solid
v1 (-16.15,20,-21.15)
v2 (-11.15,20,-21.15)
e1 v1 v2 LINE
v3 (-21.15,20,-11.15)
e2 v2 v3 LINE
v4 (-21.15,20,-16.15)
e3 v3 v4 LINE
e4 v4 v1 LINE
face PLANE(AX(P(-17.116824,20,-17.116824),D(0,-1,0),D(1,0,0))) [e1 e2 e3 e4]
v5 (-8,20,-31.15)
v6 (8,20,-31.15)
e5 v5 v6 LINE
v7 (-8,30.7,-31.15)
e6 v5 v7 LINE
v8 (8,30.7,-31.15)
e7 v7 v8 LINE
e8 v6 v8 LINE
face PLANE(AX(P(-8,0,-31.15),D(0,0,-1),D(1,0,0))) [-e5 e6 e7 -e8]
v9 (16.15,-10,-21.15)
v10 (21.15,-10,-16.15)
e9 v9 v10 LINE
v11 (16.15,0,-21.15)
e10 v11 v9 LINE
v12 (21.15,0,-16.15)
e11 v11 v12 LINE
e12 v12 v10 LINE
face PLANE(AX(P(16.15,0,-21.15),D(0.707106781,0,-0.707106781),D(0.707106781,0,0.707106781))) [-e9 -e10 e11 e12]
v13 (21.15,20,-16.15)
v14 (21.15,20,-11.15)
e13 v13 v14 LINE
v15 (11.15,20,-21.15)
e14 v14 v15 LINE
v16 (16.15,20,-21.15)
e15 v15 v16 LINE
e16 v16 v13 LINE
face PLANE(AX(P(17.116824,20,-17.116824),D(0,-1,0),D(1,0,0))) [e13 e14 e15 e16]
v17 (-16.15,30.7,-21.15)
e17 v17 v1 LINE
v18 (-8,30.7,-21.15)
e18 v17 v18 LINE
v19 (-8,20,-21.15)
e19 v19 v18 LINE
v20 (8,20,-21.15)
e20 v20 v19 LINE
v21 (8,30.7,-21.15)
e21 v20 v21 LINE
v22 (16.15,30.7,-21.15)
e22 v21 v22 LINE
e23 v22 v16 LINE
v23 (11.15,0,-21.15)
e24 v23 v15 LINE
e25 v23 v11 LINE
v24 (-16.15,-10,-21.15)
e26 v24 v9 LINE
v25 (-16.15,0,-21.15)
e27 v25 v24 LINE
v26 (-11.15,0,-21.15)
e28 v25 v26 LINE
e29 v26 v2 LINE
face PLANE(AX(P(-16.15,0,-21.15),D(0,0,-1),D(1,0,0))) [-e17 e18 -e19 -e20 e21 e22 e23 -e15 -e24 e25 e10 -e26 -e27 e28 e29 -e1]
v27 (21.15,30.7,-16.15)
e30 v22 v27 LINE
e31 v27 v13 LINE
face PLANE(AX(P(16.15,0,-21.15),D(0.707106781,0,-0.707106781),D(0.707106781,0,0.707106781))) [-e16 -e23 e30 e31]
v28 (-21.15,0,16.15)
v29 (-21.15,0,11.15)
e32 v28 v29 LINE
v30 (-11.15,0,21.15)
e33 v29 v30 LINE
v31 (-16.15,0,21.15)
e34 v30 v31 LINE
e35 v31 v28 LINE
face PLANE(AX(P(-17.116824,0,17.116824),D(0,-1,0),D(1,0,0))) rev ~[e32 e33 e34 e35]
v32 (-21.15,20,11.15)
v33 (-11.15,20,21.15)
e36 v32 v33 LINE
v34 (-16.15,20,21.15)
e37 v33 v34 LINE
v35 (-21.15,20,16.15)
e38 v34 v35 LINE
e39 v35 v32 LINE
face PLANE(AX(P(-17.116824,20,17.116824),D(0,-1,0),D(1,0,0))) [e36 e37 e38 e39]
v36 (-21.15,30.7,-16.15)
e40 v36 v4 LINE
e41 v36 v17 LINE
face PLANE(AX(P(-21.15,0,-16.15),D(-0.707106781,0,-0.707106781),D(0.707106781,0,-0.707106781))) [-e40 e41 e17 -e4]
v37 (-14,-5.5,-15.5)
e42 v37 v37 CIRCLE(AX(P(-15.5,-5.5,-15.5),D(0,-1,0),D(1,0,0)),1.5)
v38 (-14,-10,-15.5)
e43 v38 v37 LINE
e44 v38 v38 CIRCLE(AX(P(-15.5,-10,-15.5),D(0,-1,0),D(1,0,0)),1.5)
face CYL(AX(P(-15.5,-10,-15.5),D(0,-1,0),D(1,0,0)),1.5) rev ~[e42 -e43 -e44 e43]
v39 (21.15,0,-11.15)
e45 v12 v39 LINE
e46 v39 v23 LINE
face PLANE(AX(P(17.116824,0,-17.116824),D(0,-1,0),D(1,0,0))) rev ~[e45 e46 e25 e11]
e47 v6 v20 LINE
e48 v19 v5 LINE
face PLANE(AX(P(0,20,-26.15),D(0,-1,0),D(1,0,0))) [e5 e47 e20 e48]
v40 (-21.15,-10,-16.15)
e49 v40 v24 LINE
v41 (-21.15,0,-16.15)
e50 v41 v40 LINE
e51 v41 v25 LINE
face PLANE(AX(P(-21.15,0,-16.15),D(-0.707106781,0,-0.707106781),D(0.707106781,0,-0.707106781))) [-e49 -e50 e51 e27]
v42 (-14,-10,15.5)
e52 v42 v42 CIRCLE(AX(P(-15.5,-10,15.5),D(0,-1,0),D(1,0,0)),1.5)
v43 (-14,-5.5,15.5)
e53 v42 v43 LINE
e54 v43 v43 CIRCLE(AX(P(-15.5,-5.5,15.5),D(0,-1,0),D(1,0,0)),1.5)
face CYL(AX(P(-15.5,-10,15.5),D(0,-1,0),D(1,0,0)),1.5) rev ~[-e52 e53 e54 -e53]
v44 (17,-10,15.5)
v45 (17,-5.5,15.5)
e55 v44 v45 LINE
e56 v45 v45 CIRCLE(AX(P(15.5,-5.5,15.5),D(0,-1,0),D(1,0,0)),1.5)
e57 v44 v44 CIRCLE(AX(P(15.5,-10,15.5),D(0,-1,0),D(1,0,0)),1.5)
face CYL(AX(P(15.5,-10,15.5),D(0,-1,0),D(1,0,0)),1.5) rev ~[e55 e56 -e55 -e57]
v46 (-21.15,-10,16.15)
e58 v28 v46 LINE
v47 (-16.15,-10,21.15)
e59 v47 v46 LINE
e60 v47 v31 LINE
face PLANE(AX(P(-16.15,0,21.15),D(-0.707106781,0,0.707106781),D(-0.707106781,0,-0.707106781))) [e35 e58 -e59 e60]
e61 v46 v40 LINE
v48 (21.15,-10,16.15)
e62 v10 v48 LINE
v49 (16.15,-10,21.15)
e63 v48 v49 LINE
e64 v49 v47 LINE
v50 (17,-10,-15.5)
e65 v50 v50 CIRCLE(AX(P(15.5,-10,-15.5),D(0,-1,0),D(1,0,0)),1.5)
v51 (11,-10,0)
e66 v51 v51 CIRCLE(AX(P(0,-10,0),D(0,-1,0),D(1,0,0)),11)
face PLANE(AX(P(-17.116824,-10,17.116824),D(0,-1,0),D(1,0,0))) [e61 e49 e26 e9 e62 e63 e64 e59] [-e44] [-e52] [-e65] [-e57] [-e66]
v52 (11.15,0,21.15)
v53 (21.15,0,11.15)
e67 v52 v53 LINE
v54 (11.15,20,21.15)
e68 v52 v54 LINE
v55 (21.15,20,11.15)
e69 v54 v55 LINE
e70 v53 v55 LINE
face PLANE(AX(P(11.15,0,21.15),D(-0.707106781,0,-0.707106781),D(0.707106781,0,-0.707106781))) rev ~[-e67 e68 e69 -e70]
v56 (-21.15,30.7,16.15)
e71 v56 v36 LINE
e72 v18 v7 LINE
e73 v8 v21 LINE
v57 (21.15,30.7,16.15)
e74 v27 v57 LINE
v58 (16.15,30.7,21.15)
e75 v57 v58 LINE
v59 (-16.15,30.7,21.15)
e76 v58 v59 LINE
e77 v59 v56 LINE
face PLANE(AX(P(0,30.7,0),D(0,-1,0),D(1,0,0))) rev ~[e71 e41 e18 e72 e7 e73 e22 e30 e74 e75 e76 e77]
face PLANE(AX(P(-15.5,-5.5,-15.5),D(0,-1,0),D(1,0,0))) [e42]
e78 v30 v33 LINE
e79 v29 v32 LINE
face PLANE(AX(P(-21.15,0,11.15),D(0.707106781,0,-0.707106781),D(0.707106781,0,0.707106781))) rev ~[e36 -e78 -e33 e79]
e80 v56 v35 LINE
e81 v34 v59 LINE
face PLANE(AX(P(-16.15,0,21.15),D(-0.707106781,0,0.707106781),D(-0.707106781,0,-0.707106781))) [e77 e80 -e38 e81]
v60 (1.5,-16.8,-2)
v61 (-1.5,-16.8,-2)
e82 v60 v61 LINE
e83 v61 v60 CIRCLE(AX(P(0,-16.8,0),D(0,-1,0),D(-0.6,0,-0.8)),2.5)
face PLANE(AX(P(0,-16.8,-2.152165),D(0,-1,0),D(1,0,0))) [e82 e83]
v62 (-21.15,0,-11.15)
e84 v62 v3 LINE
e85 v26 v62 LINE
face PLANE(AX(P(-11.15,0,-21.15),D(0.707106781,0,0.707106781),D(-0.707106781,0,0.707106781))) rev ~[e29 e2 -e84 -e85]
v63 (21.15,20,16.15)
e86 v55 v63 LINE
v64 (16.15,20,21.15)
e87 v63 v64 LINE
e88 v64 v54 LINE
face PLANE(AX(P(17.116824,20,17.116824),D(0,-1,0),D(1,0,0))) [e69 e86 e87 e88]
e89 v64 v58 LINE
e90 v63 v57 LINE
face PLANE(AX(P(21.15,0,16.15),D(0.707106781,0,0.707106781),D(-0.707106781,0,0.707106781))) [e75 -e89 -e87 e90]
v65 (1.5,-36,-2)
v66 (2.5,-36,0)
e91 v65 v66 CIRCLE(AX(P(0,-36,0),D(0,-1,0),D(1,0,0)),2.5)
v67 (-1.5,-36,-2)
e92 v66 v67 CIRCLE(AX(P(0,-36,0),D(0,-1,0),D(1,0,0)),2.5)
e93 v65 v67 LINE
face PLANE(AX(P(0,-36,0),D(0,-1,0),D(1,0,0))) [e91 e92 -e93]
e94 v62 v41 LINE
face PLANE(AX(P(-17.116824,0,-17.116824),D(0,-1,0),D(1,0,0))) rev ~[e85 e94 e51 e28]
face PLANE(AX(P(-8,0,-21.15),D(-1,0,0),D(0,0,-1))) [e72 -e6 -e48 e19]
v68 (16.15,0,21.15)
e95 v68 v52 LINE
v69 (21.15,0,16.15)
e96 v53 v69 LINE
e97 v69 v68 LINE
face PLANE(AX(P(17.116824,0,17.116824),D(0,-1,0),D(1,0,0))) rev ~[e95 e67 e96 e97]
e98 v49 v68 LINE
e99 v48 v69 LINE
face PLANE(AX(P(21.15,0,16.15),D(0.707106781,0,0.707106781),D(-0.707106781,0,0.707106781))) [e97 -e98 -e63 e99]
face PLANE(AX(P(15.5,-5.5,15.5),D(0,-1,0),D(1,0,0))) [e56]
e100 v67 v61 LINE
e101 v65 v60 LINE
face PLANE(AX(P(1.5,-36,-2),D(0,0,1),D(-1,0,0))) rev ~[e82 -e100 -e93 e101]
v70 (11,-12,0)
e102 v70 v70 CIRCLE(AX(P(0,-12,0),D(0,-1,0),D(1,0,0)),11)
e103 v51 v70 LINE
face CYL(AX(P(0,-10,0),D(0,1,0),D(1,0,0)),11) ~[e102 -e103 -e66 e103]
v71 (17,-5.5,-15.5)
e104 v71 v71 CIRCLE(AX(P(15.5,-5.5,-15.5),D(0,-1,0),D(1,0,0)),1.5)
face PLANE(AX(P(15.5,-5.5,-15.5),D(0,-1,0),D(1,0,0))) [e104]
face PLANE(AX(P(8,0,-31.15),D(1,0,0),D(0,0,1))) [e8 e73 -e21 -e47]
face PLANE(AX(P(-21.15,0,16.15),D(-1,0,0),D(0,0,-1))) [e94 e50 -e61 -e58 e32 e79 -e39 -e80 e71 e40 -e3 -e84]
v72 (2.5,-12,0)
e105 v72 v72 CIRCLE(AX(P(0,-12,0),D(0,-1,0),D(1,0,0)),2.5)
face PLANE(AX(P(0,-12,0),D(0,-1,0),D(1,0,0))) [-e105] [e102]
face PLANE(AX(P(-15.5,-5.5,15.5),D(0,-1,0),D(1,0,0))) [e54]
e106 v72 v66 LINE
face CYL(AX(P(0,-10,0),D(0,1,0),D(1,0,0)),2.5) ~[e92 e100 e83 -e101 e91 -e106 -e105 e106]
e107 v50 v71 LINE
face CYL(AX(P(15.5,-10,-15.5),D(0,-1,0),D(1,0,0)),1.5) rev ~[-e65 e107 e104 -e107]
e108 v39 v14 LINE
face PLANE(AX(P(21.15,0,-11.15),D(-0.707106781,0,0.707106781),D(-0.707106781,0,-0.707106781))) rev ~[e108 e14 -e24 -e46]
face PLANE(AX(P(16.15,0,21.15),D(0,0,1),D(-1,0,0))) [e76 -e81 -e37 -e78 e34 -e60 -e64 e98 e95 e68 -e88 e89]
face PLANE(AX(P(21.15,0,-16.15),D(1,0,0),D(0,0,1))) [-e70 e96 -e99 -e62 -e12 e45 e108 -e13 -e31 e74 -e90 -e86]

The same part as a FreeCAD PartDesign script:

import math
import FreeCAD as App
import Part
import Sketcher

V = App.Vector

doc = App.newDocument("Part")
body = doc.addObject("PartDesign::Body", "Body")

sketch1 = doc.addObject("Sketcher::SketchObject", "Sketch")
body.addObject(sketch1)
sketch1.AttachmentSupport = (doc.XZ_Plane, [""])
sketch1.MapMode = "FlatFace"
sketch1.addGeometry(Part.LineSegment(V(-16.15, 21.15, 0), V(-21.15, 16.15, 0)), False)
sketch1.addGeometry(Part.LineSegment(V(-21.15, 16.15, 0), V(-21.15, -16.15, 0)), False)
sketch1.addGeometry(Part.LineSegment(V(-21.15, -16.15, 0), V(-16.15, -21.15, 0)), False)
sketch1.addGeometry(Part.LineSegment(V(-16.15, -21.15, 0), V(16.15, -21.15, 0)), False)
sketch1.addGeometry(Part.LineSegment(V(16.15, -21.15, 0), V(21.15, -16.15, 0)), False)
sketch1.addGeometry(Part.LineSegment(V(21.15, -16.15, 0), V(21.15, 16.15, 0)), False)
sketch1.addGeometry(Part.LineSegment(V(21.15, 16.15, 0), V(16.15, 21.15, 0)), False)
sketch1.addGeometry(Part.LineSegment(V(16.15, 21.15, 0), V(-16.15, 21.15, 0)), False)
sketch1.addConstraint(Sketcher.Constraint("Coincident", 0, 2, 1, 1))
sketch1.addConstraint(Sketcher.Constraint("Coincident", 1, 2, 2, 1))
sketch1.addConstraint(Sketcher.Constraint("Coincident", 2, 2, 3, 1))
sketch1.addConstraint(Sketcher.Constraint("Coincident", 3, 2, 4, 1))
sketch1.addConstraint(Sketcher.Constraint("Coincident", 4, 2, 5, 1))
sketch1.addConstraint(Sketcher.Constraint("Coincident", 5, 2, 6, 1))
sketch1.addConstraint(Sketcher.Constraint("Coincident", 6, 2, 7, 1))
sketch1.addConstraint(Sketcher.Constraint("Coincident", 7, 2, 0, 1))
sketch1.addConstraint(Sketcher.Constraint("Vertical", 1))
sketch1.addConstraint(Sketcher.Constraint("Horizontal", 3))
sketch1.addConstraint(Sketcher.Constraint("Vertical", 5))
sketch1.addConstraint(Sketcher.Constraint("Horizontal", 7))
sketch1.addConstraint(Sketcher.Constraint("Symmetric", 0, 2, 4, 2, -1, 1))
sketch1.addConstraint(Sketcher.Constraint("Symmetric", 2, 2, 6, 2, -1, 1))
sketch1.addConstraint(Sketcher.Constraint("Perpendicular", 0, 2))
sketch1.addConstraint(Sketcher.Constraint("Perpendicular", 2, 4))
sketch1.addConstraint(Sketcher.Constraint("Perpendicular", 4, 6))
sketch1.addConstraint(Sketcher.Constraint("Horizontal", 1, 2, 4, 2))
sketch1.addConstraint(Sketcher.Constraint("Vertical", 3, 2, 6, 2))
sketch1.addConstraint(Sketcher.Constraint("Equal", 7, 1))
sketch1.addConstraint(Sketcher.Constraint("DistanceX", 3, 1, 3, 2, 32.3))
sketch1.addConstraint(Sketcher.Constraint("DistanceX", 1, 2, 2, 2, 5.0))
pad1 = doc.addObject("PartDesign::Pad", "Pad")
body.addObject(pad1)
pad1.Profile = sketch1
pad1.Length = 10

sketch2 = doc.addObject("Sketcher::SketchObject", "Sketch001")
body.addObject(sketch2)
sketch2.AttachmentSupport = (doc.XZ_Plane, [""])
sketch2.MapMode = "FlatFace"
sketch2.addGeometry(Part.LineSegment(V(-16.15, 21.15, 0), V(-21.15, 16.15, 0)), False)
sketch2.addGeometry(Part.LineSegment(V(-21.15, 16.15, 0), V(-21.15, -16.15, 0)), False)
sketch2.addGeometry(Part.LineSegment(V(-21.15, -16.15, 0), V(-16.15, -21.15, 0)), False)
sketch2.addGeometry(Part.LineSegment(V(-16.15, -21.15, 0), V(-8, -21.15, 0)), False)
sketch2.addGeometry(Part.LineSegment(V(-8, -21.15, 0), V(-8, -31.15, 0)), False)
sketch2.addGeometry(Part.LineSegment(V(-8, -31.15, 0), V(8, -31.15, 0)), False)
sketch2.addGeometry(Part.LineSegment(V(8, -31.15, 0), V(8, -21.15, 0)), False)
sketch2.addGeometry(Part.LineSegment(V(8, -21.15, 0), V(16.15, -21.15, 0)), False)
sketch2.addGeometry(Part.LineSegment(V(16.15, -21.15, 0), V(21.15, -16.15, 0)), False)
sketch2.addGeometry(Part.LineSegment(V(21.15, -16.15, 0), V(21.15, 16.15, 0)), False)
sketch2.addGeometry(Part.LineSegment(V(21.15, 16.15, 0), V(16.15, 21.15, 0)), False)
sketch2.addGeometry(Part.LineSegment(V(16.15, 21.15, 0), V(-16.15, 21.15, 0)), False)
sketch2.addConstraint(Sketcher.Constraint("Coincident", 0, 2, 1, 1))
sketch2.addConstraint(Sketcher.Constraint("Coincident", 1, 2, 2, 1))
sketch2.addConstraint(Sketcher.Constraint("Coincident", 2, 2, 3, 1))
sketch2.addConstraint(Sketcher.Constraint("Coincident", 3, 2, 4, 1))
sketch2.addConstraint(Sketcher.Constraint("Coincident", 4, 2, 5, 1))
sketch2.addConstraint(Sketcher.Constraint("Coincident", 5, 2, 6, 1))
sketch2.addConstraint(Sketcher.Constraint("Coincident", 6, 2, 7, 1))
sketch2.addConstraint(Sketcher.Constraint("Coincident", 7, 2, 8, 1))
sketch2.addConstraint(Sketcher.Constraint("Coincident", 8, 2, 9, 1))
sketch2.addConstraint(Sketcher.Constraint("Coincident", 9, 2, 10, 1))
sketch2.addConstraint(Sketcher.Constraint("Coincident", 10, 2, 11, 1))
sketch2.addConstraint(Sketcher.Constraint("Coincident", 11, 2, 0, 1))
sketch2.addConstraint(Sketcher.Constraint("Vertical", 1))
sketch2.addConstraint(Sketcher.Constraint("Horizontal", 3))
sketch2.addConstraint(Sketcher.Constraint("Vertical", 4))
sketch2.addConstraint(Sketcher.Constraint("Horizontal", 5))
sketch2.addConstraint(Sketcher.Constraint("Vertical", 6))
sketch2.addConstraint(Sketcher.Constraint("Horizontal", 7))
sketch2.addConstraint(Sketcher.Constraint("Vertical", 9))
sketch2.addConstraint(Sketcher.Constraint("Horizontal", 11))
sketch2.addConstraint(Sketcher.Constraint("Symmetric", 0, 2, 8, 2, -1, 1))
sketch2.addConstraint(Sketcher.Constraint("Symmetric", 2, 2, 10, 2, -1, 1))
sketch2.addConstraint(Sketcher.Constraint("Symmetric", 7, 2, 11, 2, -1, 1))
sketch2.addConstraint(Sketcher.Constraint("Perpendicular", 0, 2))
sketch2.addConstraint(Sketcher.Constraint("Perpendicular", 8, 10))
sketch2.addConstraint(Sketcher.Constraint("Horizontal", 1, 2, 8, 2))
sketch2.addConstraint(Sketcher.Constraint("Vertical", 7, 2, 10, 2))
sketch2.addConstraint(Sketcher.Constraint("Equal", 3, 7))
sketch2.addConstraint(Sketcher.Constraint("Equal", 11, 1))
sketch2.addConstraint(Sketcher.Constraint("DistanceX", 5, 1, 5, 2, 16.0))
sketch2.addConstraint(Sketcher.Constraint("DistanceY", 4, 2, 4, 1, 10.0))
sketch2.addConstraint(Sketcher.Constraint("DistanceX", 11, 2, 11, 1, 32.3))
sketch2.addConstraint(Sketcher.Constraint("DistanceX", 1, 2, 2, 2, 5.0))
pad2 = doc.addObject("PartDesign::Pad", "Pad001")
body.addObject(pad2)
pad2.Profile = sketch2
pad2.Length = 30.7
pad2.Reversed = True

sketch3 = doc.addObject("Sketcher::SketchObject", "Sketch002")
body.addObject(sketch3)
sketch3.AttachmentSupport = (doc.XZ_Plane, [""])
sketch3.MapMode = "FlatFace"
sketch3.addGeometry(Part.LineSegment(V(16.15, 21.15, 0), V(11.15, 21.15, 0)), False)
sketch3.addGeometry(Part.LineSegment(V(11.15, 21.15, 0), V(21.15, 11.15, 0)), False)
sketch3.addGeometry(Part.LineSegment(V(21.15, 11.15, 0), V(21.15, 16.15, 0)), False)
sketch3.addGeometry(Part.LineSegment(V(21.15, 16.15, 0), V(16.15, 21.15, 0)), False)
sketch3.addGeometry(Part.LineSegment(V(-21.15, 11.15, 0), V(-11.15, 21.15, 0)), False)
sketch3.addGeometry(Part.LineSegment(V(-11.15, 21.15, 0), V(-16.15, 21.15, 0)), False)
sketch3.addGeometry(Part.LineSegment(V(-16.15, 21.15, 0), V(-21.15, 16.15, 0)), False)
sketch3.addGeometry(Part.LineSegment(V(-21.15, 16.15, 0), V(-21.15, 11.15, 0)), False)
sketch3.addGeometry(Part.LineSegment(V(-11.15, -21.15, 0), V(-21.15, -11.15, 0)), False)
sketch3.addGeometry(Part.LineSegment(V(-21.15, -11.15, 0), V(-21.15, -16.15, 0)), False)
sketch3.addGeometry(Part.LineSegment(V(-21.15, -16.15, 0), V(-16.15, -21.15, 0)), False)
sketch3.addGeometry(Part.LineSegment(V(-16.15, -21.15, 0), V(-11.15, -21.15, 0)), False)
sketch3.addGeometry(Part.LineSegment(V(21.15, -16.15, 0), V(21.15, -11.15, 0)), False)
sketch3.addGeometry(Part.LineSegment(V(21.15, -11.15, 0), V(11.15, -21.15, 0)), False)
sketch3.addGeometry(Part.LineSegment(V(11.15, -21.15, 0), V(16.15, -21.15, 0)), False)
sketch3.addGeometry(Part.LineSegment(V(16.15, -21.15, 0), V(21.15, -16.15, 0)), False)
sketch3.addGeometry(Part.LineSegment(V(8, -21.15, 0), V(-8, -21.15, 0)), False)
sketch3.addGeometry(Part.LineSegment(V(-8, -21.15, 0), V(-8, -31.15, 0)), False)
sketch3.addGeometry(Part.LineSegment(V(-8, -31.15, 0), V(8, -31.15, 0)), False)
sketch3.addGeometry(Part.LineSegment(V(8, -31.15, 0), V(8, -21.15, 0)), False)
sketch3.addConstraint(Sketcher.Constraint("Coincident", 0, 2, 1, 1))
sketch3.addConstraint(Sketcher.Constraint("Coincident", 1, 2, 2, 1))
sketch3.addConstraint(Sketcher.Constraint("Coincident", 2, 2, 3, 1))
sketch3.addConstraint(Sketcher.Constraint("Coincident", 3, 2, 0, 1))
sketch3.addConstraint(Sketcher.Constraint("Coincident", 4, 2, 5, 1))
sketch3.addConstraint(Sketcher.Constraint("Coincident", 5, 2, 6, 1))
sketch3.addConstraint(Sketcher.Constraint("Coincident", 6, 2, 7, 1))
sketch3.addConstraint(Sketcher.Constraint("Coincident", 7, 2, 4, 1))
sketch3.addConstraint(Sketcher.Constraint("Coincident", 8, 2, 9, 1))
sketch3.addConstraint(Sketcher.Constraint("Coincident", 9, 2, 10, 1))
sketch3.addConstraint(Sketcher.Constraint("Coincident", 10, 2, 11, 1))
sketch3.addConstraint(Sketcher.Constraint("Coincident", 11, 2, 8, 1))
sketch3.addConstraint(Sketcher.Constraint("Coincident", 12, 2, 13, 1))
sketch3.addConstraint(Sketcher.Constraint("Coincident", 13, 2, 14, 1))
sketch3.addConstraint(Sketcher.Constraint("Coincident", 14, 2, 15, 1))
sketch3.addConstraint(Sketcher.Constraint("Coincident", 15, 2, 12, 1))
sketch3.addConstraint(Sketcher.Constraint("Coincident", 16, 2, 17, 1))
sketch3.addConstraint(Sketcher.Constraint("Coincident", 17, 2, 18, 1))
sketch3.addConstraint(Sketcher.Constraint("Coincident", 18, 2, 19, 1))
sketch3.addConstraint(Sketcher.Constraint("Coincident", 19, 2, 16, 1))
sketch3.addConstraint(Sketcher.Constraint("Horizontal", 0))
sketch3.addConstraint(Sketcher.Constraint("Vertical", 2))
sketch3.addConstraint(Sketcher.Constraint("Horizontal", 5))
sketch3.addConstraint(Sketcher.Constraint("Vertical", 7))
sketch3.addConstraint(Sketcher.Constraint("Vertical", 9))
sketch3.addConstraint(Sketcher.Constraint("Horizontal", 11))
sketch3.addConstraint(Sketcher.Constraint("Vertical", 12))
sketch3.addConstraint(Sketcher.Constraint("Horizontal", 14))
sketch3.addConstraint(Sketcher.Constraint("Horizontal", 16))
sketch3.addConstraint(Sketcher.Constraint("Vertical", 17))
sketch3.addConstraint(Sketcher.Constraint("Horizontal", 18))
sketch3.addConstraint(Sketcher.Constraint("Vertical", 19))
sketch3.addConstraint(Sketcher.Constraint("Symmetric", 1, 2, 8, 2, -1, 1))
sketch3.addConstraint(Sketcher.Constraint("Symmetric", 3, 2, 10, 2, -1, 1))
sketch3.addConstraint(Sketcher.Constraint("Symmetric", 7, 2, 12, 2, -1, 1))
sketch3.addConstraint(Sketcher.Constraint("Symmetric", 4, 2, 13, 2, -1, 1))
sketch3.addConstraint(Sketcher.Constraint("Symmetric", 0, 2, 4, 2, -2))
sketch3.addConstraint(Sketcher.Constraint("Symmetric", 2, 2, 6, 2, -2))
sketch3.addConstraint(Sketcher.Constraint("Parallel", 1, 3))
sketch3.addConstraint(Sketcher.Constraint("Perpendicular", 3, 4))
sketch3.addConstraint(Sketcher.Constraint("Parallel", 4, 6))
sketch3.addConstraint(Sketcher.Constraint("Perpendicular", 6, 8))
sketch3.addConstraint(Sketcher.Constraint("Parallel", 8, 10))
sketch3.addConstraint(Sketcher.Constraint("Parallel", 13, 15))
sketch3.addConstraint(Sketcher.Constraint("Horizontal", 1, 2, 7, 2))
sketch3.addConstraint(Sketcher.Constraint("Horizontal", 9, 2, 15, 2))
sketch3.addConstraint(Sketcher.Constraint("Horizontal", 14, 2, 16, 2))
sketch3.addConstraint(Sketcher.Constraint("DistanceX", 0, 2, 0, 1, 5.0))
sketch3.addConstraint(Sketcher.Constraint("DistanceX", 16, 2, 16, 1, 16.0))
sketch3.addConstraint(Sketcher.Constraint("DistanceY", 17, 2, 17, 1, 10.0))
sketch3.addConstraint(Sketcher.Constraint("DistanceX", 16, 2, -1, 1, 8.0))
sketch3.addConstraint(Sketcher.Constraint("DistanceX", 0, 2, 1, 2, 10.0))
sketch3.addConstraint(Sketcher.Constraint("DistanceX", 4, 2, 0, 2, 22.3))
sketch3.addConstraint(Sketcher.Constraint("DistanceY", 8, 2, 7, 2, 22.3))
pocket1 = doc.addObject("PartDesign::Pocket", "Pocket")
body.addObject(pocket1)
pocket1.Profile = sketch3
pocket1.Length = 20

sketch4 = doc.addObject("Sketcher::SketchObject", "Sketch003")
body.addObject(sketch4)
sketch4.AttachmentSupport = (doc.XZ_Plane, [""])
sketch4.MapMode = "FlatFace"
sketch4.AttachmentOffset = App.Placement(V(0, 0, 10), App.Rotation())
sketch4.addGeometry(Part.Circle(V(0, 0, 0), V(0, 0, 1), 11), False)
sketch4.addGeometry(Part.Circle(V(0, 0, 0), V(0, 0, 1), 2.5), False)
sketch4.addConstraint(Sketcher.Constraint("Coincident", 0, 3, -1, 1))
sketch4.addConstraint(Sketcher.Constraint("Coincident", 1, 3, -1, 1))
sketch4.addConstraint(Sketcher.Constraint("Diameter", 0, 22.0))
sketch4.addConstraint(Sketcher.Constraint("Diameter", 1, 5.0))
pad3 = doc.addObject("PartDesign::Pad", "Pad002")
body.addObject(pad3)
pad3.Profile = sketch4
pad3.Length = 2

sketch5 = doc.addObject("Sketcher::SketchObject", "Sketch004")
body.addObject(sketch5)
sketch5.AttachmentSupport = (doc.XZ_Plane, [""])
sketch5.MapMode = "FlatFace"
sketch5.AttachmentOffset = App.Placement(V(0, 0, 10), App.Rotation())
sketch5.addGeometry(Part.Circle(V(0, 0, 0), V(0, 0, 1), 2.5), False)
sketch5.addConstraint(Sketcher.Constraint("Coincident", 0, 3, -1, 1))
sketch5.addConstraint(Sketcher.Constraint("Diameter", 0, 5.0))
pad4 = doc.addObject("PartDesign::Pad", "Pad003")
body.addObject(pad4)
pad4.Profile = sketch5
pad4.Length = 26

sketch6 = doc.addObject("Sketcher::SketchObject", "Sketch005")
body.addObject(sketch6)
sketch6.AttachmentSupport = (doc.XZ_Plane, [""])
sketch6.MapMode = "FlatFace"
sketch6.AttachmentOffset = App.Placement(V(0, 0, 36), App.Rotation())
sketch6.addGeometry(Part.LineSegment(V(1.5, -2, 0), V(-1.5, -2, 0)), False)
sketch6.addGeometry(Part.ArcOfCircle(Part.Circle(V(0, 0, 0), V(0, 0, 1), 2.5), math.radians(-126.869898), math.radians(-53.130102)), False)
sketch6.addConstraint(Sketcher.Constraint("Coincident", 0, 1, 1, 2))
sketch6.addConstraint(Sketcher.Constraint("Coincident", 1, 1, 0, 2))
sketch6.addConstraint(Sketcher.Constraint("Horizontal", 0))
sketch6.addConstraint(Sketcher.Constraint("Coincident", 1, 3, -1, 1))
sketch6.addConstraint(Sketcher.Constraint("Radius", 1, 2.5))
sketch6.addConstraint(Sketcher.Constraint("DistanceX", 0, 2, 0, 1, 3.0))
pocket2 = doc.addObject("PartDesign::Pocket", "Pocket001")
body.addObject(pocket2)
pocket2.Profile = sketch6
pocket2.Length = 19.2

sketch7 = doc.addObject("Sketcher::SketchObject", "Sketch006")
body.addObject(sketch7)
sketch7.AttachmentSupport = (doc.XZ_Plane, [""])
sketch7.MapMode = "FlatFace"
sketch7.AttachmentOffset = App.Placement(V(0, 0, 10), App.Rotation())
sketch7.addGeometry(Part.Circle(V(-15.5, 15.5, 0), V(0, 0, 1), 1.5), False)
sketch7.addGeometry(Part.Circle(V(15.5, 15.5, 0), V(0, 0, 1), 1.5), False)
sketch7.addGeometry(Part.Circle(V(15.5, -15.5, 0), V(0, 0, 1), 1.5), False)
sketch7.addGeometry(Part.Circle(V(-15.5, -15.5, 0), V(0, 0, 1), 1.5), False)
sketch7.addConstraint(Sketcher.Constraint("Equal", 0, 1))
sketch7.addConstraint(Sketcher.Constraint("Equal", 1, 2))
sketch7.addConstraint(Sketcher.Constraint("Equal", 2, 3))
sketch7.addConstraint(Sketcher.Constraint("Symmetric", 0, 3, 2, 3, -1, 1))
sketch7.addConstraint(Sketcher.Constraint("Symmetric", 1, 3, 3, 3, -1, 1))
sketch7.addConstraint(Sketcher.Constraint("Symmetric", 0, 3, 1, 3, -2))
sketch7.addConstraint(Sketcher.Constraint("Diameter", 0, 3.0))
sketch7.addConstraint(Sketcher.Constraint("DistanceX", 0, 3, 1, 3, 31.0))
sketch7.addConstraint(Sketcher.Constraint("DistanceY", 2, 3, 1, 3, 31.0))
pocket3 = doc.addObject("PartDesign::Pocket", "Pocket002")
body.addObject(pocket3)
pocket3.Profile = sketch7
pocket3.Length = 4.5

doc.recompute()
